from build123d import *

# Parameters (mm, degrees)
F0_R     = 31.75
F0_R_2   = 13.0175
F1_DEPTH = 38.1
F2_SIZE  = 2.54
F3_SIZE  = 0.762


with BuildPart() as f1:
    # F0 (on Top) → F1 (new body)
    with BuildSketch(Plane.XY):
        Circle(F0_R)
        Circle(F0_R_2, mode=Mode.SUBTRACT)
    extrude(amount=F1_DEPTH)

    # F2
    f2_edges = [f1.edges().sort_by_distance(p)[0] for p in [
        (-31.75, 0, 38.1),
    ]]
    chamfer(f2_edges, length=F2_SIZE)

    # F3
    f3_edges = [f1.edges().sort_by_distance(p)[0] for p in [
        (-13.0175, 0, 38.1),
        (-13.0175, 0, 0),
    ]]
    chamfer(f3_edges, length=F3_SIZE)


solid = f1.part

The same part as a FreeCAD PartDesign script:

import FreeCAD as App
import Part
import Sketcher
from FreeCAD import Vector
Q = App.Units.Quantity


def edges_at(feature, points):
    """Names of the edges that pass closest to the given points."""
    edges = feature.Shape.Edges
    near = lambda p: min(range(len(edges)), key=lambda i: edges[i].distToShape(Part.Vertex(*p))[0])
    return sorted({f"Edge{near(p) + 1}" for p in points})

doc = App.newDocument("Part")
body = doc.addObject("PartDesign::Body", "Body")

sketch1 = body.newObject("Sketcher::SketchObject", "Sketch")
sketch1.AttachmentSupport = (doc.getObject("XY_Plane"), [""])
sketch1.MapMode = "FlatFace"
sketch1.addGeometry(Part.Circle(Vector(0, 0, 0), Vector(0, 0, 1), 32), False)
sketch1.addGeometry(Part.Circle(Vector(0, 0, 0), Vector(0, 0, 1), 13), False)
sketch1.addConstraint(Sketcher.Constraint("Coincident", 0, 3, -1, 1))
sketch1.addConstraint(Sketcher.Constraint("Coincident", 1, 3, -1, 1))
sketch1.addConstraint(Sketcher.Constraint("Diameter", 0, Q("2.5 in")))
sketch1.addConstraint(Sketcher.Constraint("Diameter", 1, Q("1.025 in")))
pad1 = body.newObject("PartDesign::Pad", "Pad")
pad1.Profile = sketch1
pad1.Length = Q("1.5 in")
doc.recompute()

chamfer = body.newObject("PartDesign::Chamfer", "Chamfer")
chamfer.Base = (pad1, edges_at(pad1, [(-31.75, 0, 38.1)]))
chamfer.Size = Q("0.1 in")
doc.recompute()

chamfer2 = body.newObject("PartDesign::Chamfer", "Chamfer001")
chamfer2.Base = (chamfer, edges_at(chamfer, [(-13.018, 0, 38.1), (-13.018, 0, 0)]))
chamfer2.Size = Q("0.03 in")

doc.recompute()
